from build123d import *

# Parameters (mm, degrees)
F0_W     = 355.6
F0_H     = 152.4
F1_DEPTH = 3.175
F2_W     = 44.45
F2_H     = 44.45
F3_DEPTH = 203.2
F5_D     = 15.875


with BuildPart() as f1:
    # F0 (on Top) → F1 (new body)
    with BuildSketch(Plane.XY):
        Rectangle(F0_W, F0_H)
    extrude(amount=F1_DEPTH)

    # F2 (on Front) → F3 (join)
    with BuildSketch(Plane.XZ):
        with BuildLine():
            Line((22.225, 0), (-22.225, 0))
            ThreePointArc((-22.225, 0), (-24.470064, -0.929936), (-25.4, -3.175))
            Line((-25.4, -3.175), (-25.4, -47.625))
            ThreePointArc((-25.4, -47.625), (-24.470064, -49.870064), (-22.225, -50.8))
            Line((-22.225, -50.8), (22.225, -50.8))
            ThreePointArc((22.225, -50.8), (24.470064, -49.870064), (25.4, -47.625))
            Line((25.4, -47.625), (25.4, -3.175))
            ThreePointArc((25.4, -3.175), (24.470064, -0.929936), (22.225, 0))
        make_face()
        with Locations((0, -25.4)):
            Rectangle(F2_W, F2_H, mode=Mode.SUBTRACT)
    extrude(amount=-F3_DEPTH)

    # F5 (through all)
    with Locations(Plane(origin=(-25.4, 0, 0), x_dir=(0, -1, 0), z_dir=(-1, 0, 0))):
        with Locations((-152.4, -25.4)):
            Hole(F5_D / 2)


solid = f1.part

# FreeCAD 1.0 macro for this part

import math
import FreeCAD as App
import Part
import Sketcher

V = App.Vector
Q = App.Units.Quantity

doc = App.newDocument("Part")
body = doc.addObject("PartDesign::Body", "Body")

# Sketch on XY plane
sketch1 = doc.addObject("Sketcher::SketchObject", "Sketch")
body.addObject(sketch1)
sketch1.AttachmentSupport = (doc.XY_Plane, [""])
sketch1.MapMode = "FlatFace"
sketch1.addGeometry(Part.LineSegment(V(-178, 76, 0), V(-178, -76, 0)), False)
sketch1.addGeometry(Part.LineSegment(V(-178, -76, 0), V(178, -76, 0)), False)
sketch1.addGeometry(Part.LineSegment(V(178, -76, 0), V(178, 76, 0)), False)
sketch1.addGeometry(Part.LineSegment(V(178, 76, 0), V(-178, 76, 0)), False)
sketch1.addConstraint(Sketcher.Constraint("Coincident", 0, 2, 1, 1))
sketch1.addConstraint(Sketcher.Constraint("Coincident", 1, 2, 2, 1))
sketch1.addConstraint(Sketcher.Constraint("Coincident", 2, 2, 3, 1))
sketch1.addConstraint(Sketcher.Constraint("Coincident", 3, 2, 0, 1))
sketch1.addConstraint(Sketcher.Constraint("Vertical", 0))
sketch1.addConstraint(Sketcher.Constraint("Horizontal", 1))
sketch1.addConstraint(Sketcher.Constraint("Vertical", 2))
sketch1.addConstraint(Sketcher.Constraint("Horizontal", 3))
sketch1.addConstraint(Sketcher.Constraint("Symmetric", 0, 2, 2, 2, -1, 1))
sketch1.addConstraint(Sketcher.Constraint("DistanceX", 1, 1, 1, 2, Q("14 in")))
sketch1.addConstraint(Sketcher.Constraint("DistanceY", 0, 2, 0, 1, Q("6 in")))
pad1 = doc.addObject("PartDesign::Pad", "Pad")
body.addObject(pad1)
pad1.Profile = sketch1
pad1.Length = Q("0.125 in")

# Sketch on XZ plane
sketch2 = doc.addObject("Sketcher::SketchObject", "Sketch001")
body.addObject(sketch2)
sketch2.AttachmentSupport = (doc.XZ_Plane, [""])
sketch2.MapMode = "FlatFace"
sketch2.addGeometry(Part.LineSegment(V(22.2, 0, 0), V(-22.2, 0, 0)), False)
sketch2.addGeometry(Part.ArcOfCircle(Part.Circle(V(-22.2, -3.2, 0), V(0, 0, 1), 3.2), math.radians(90), math.radians(180)), False)
sketch2.addGeometry(Part.LineSegment(V(-25.4, -3.2, 0), V(-25.4, -47.6, 0)), False)
sketch2.addGeometry(Part.ArcOfCircle(Part.Circle(V(-22.2, -47.6, 0), V(0, 0, 1), 3.2), math.radians(-180), math.radians(-90)), False)
sketch2.addGeometry(Part.LineSegment(V(-22.2, -50.8, 0), V(22.2, -50.8, 0)), False)
sketch2.addGeometry(Part.ArcOfCircle(Part.Circle(V(22.2, -47.6, 0), V(0, 0, 1), 3.2), math.radians(-90), math.radians(0)), False)
sketch2.addGeometry(Part.LineSegment(V(25.4, -47.6, 0), V(25.4, -3.2, 0)), False)
sketch2.addGeometry(Part.ArcOfCircle(Part.Circle(V(22.2, -3.2, 0), V(0, 0, 1), 3.2), math.radians(0), math.radians(90)), False)
sketch2.addGeometry(Part.LineSegment(V(22.2, -47.6, 0), V(-22.2, -47.6, 0)), False)
sketch2.addGeometry(Part.LineSegment(V(-22.2, -47.6, 0), V(-22.2, -3.2, 0)), False)
sketch2.addGeometry(Part.LineSegment(V(-22.2, -3.2, 0), V(22.2, -3.2, 0)), False)
sketch2.addGeometry(Part.LineSegment(V(22.2, -3.2, 0), V(22.2, -47.6, 0)), False)
sketch2.addConstraint(Sketcher.Constraint("Tangent", 0, 2, 1, 1))
sketch2.addConstraint(Sketcher.Constraint("Tangent", 1, 2, 2, 1))
sketch2.addConstraint(Sketcher.Constraint("Tangent", 2, 2, 3, 1))
sketch2.addConstraint(Sketcher.Constraint("Tangent", 3, 2, 4, 1))
sketch2.addConstraint(Sketcher.Constraint("Tangent", 4, 2, 5, 1))
sketch2.addConstraint(Sketcher.Constraint("Tangent", 5, 2, 6, 1))
sketch2.addConstraint(Sketcher.Constraint("Tangent", 6, 2, 7, 1))
sketch2.addConstraint(Sketcher.Constraint("Tangent", 7, 2, 0, 1))
sketch2.addConstraint(Sketcher.Constraint("Coincident", 8, 2, 9, 1))
sketch2.addConstraint(Sketcher.Constraint("Coincident", 9, 2, 10, 1))
sketch2.addConstraint(Sketcher.Constraint("Coincident", 10, 2, 11, 1))
sketch2.addConstraint(Sketcher.Constraint("Coincident", 11, 2, 8, 1))
sketch2.addConstraint(Sketcher.Constraint("Horizontal", 0))
sketch2.addConstraint(Sketcher.Constraint("Vertical", 2))
sketch2.addConstraint(Sketcher.Constraint("Horizontal", 4))
sketch2.addConstraint(Sketcher.Constraint("Vertical", 6))
sketch2.addConstraint(Sketcher.Constraint("Horizontal", 8))
sketch2.addConstraint(Sketcher.Constraint("Vertical", 9))
sketch2.addConstraint(Sketcher.Constraint("Horizontal", 10))
sketch2.addConstraint(Sketcher.Constraint("Vertical", 11))
sketch2.addConstraint(Sketcher.Constraint("Coincident", 8, 2, 3, 3))
sketch2.addConstraint(Sketcher.Constraint("Coincident", 9, 2, 1, 3))
sketch2.addConstraint(Sketcher.Constraint("Coincident", 10, 2, 7, 3))
sketch2.addConstraint(Sketcher.Constraint("Equal", 3, 5))
sketch2.addConstraint(Sketcher.Constraint("Symmetric", 0, 2, 7, 2, -1, 1))
sketch2.addConstraint(Sketcher.Constraint("Equal", 10, 2))
sketch2.addConstraint(Sketcher.Constraint("DistanceX", 1, 2, -1, 1, Q("1 in")))
sketch2.addConstraint(Sketcher.Constraint("Radius", 1, Q("0.125 in")))
pad2 = doc.addObject("PartDesign::Pad", "Pad001")
body.addObject(pad2)
pad2.Profile = sketch2
pad2.Length = Q("8 in")
pad2.Reversed = True

# Sketch on YZ plane
sketch3 = doc.addObject("Sketcher::SketchObject", "Sketch002")
body.addObject(sketch3)
sketch3.AttachmentSupport = (doc.YZ_Plane, [""])
sketch3.MapMode = "FlatFace"
sketch3.AttachmentOffset = App.Placement(V(0, 0, -1 * 25.4), App.Rotation())
sketch3.addGeometry(Part.Circle(V(152, -25, 0), V(0, 0, 1), 8), False)
sketch3.addConstraint(Sketcher.Constraint("Diameter", 0, Q("0.625 in")))
sketch3.addConstraint(Sketcher.Constraint("DistanceX", -1, 1, 0, 3, Q("6 in")))
sketch3.addConstraint(Sketcher.Constraint("DistanceY", 0, 3, -1, 1, Q("1 in")))
doc.recompute()
hole = doc.addObject("PartDesign::Hole", "Hole")
body.addObject(hole)
hole.Profile = sketch3
hole.ThreadType = "None"
hole.Diameter = Q("0.625 in")
hole.DepthType = "ThroughAll"
hole.Reversed = True

doc.recompute()
